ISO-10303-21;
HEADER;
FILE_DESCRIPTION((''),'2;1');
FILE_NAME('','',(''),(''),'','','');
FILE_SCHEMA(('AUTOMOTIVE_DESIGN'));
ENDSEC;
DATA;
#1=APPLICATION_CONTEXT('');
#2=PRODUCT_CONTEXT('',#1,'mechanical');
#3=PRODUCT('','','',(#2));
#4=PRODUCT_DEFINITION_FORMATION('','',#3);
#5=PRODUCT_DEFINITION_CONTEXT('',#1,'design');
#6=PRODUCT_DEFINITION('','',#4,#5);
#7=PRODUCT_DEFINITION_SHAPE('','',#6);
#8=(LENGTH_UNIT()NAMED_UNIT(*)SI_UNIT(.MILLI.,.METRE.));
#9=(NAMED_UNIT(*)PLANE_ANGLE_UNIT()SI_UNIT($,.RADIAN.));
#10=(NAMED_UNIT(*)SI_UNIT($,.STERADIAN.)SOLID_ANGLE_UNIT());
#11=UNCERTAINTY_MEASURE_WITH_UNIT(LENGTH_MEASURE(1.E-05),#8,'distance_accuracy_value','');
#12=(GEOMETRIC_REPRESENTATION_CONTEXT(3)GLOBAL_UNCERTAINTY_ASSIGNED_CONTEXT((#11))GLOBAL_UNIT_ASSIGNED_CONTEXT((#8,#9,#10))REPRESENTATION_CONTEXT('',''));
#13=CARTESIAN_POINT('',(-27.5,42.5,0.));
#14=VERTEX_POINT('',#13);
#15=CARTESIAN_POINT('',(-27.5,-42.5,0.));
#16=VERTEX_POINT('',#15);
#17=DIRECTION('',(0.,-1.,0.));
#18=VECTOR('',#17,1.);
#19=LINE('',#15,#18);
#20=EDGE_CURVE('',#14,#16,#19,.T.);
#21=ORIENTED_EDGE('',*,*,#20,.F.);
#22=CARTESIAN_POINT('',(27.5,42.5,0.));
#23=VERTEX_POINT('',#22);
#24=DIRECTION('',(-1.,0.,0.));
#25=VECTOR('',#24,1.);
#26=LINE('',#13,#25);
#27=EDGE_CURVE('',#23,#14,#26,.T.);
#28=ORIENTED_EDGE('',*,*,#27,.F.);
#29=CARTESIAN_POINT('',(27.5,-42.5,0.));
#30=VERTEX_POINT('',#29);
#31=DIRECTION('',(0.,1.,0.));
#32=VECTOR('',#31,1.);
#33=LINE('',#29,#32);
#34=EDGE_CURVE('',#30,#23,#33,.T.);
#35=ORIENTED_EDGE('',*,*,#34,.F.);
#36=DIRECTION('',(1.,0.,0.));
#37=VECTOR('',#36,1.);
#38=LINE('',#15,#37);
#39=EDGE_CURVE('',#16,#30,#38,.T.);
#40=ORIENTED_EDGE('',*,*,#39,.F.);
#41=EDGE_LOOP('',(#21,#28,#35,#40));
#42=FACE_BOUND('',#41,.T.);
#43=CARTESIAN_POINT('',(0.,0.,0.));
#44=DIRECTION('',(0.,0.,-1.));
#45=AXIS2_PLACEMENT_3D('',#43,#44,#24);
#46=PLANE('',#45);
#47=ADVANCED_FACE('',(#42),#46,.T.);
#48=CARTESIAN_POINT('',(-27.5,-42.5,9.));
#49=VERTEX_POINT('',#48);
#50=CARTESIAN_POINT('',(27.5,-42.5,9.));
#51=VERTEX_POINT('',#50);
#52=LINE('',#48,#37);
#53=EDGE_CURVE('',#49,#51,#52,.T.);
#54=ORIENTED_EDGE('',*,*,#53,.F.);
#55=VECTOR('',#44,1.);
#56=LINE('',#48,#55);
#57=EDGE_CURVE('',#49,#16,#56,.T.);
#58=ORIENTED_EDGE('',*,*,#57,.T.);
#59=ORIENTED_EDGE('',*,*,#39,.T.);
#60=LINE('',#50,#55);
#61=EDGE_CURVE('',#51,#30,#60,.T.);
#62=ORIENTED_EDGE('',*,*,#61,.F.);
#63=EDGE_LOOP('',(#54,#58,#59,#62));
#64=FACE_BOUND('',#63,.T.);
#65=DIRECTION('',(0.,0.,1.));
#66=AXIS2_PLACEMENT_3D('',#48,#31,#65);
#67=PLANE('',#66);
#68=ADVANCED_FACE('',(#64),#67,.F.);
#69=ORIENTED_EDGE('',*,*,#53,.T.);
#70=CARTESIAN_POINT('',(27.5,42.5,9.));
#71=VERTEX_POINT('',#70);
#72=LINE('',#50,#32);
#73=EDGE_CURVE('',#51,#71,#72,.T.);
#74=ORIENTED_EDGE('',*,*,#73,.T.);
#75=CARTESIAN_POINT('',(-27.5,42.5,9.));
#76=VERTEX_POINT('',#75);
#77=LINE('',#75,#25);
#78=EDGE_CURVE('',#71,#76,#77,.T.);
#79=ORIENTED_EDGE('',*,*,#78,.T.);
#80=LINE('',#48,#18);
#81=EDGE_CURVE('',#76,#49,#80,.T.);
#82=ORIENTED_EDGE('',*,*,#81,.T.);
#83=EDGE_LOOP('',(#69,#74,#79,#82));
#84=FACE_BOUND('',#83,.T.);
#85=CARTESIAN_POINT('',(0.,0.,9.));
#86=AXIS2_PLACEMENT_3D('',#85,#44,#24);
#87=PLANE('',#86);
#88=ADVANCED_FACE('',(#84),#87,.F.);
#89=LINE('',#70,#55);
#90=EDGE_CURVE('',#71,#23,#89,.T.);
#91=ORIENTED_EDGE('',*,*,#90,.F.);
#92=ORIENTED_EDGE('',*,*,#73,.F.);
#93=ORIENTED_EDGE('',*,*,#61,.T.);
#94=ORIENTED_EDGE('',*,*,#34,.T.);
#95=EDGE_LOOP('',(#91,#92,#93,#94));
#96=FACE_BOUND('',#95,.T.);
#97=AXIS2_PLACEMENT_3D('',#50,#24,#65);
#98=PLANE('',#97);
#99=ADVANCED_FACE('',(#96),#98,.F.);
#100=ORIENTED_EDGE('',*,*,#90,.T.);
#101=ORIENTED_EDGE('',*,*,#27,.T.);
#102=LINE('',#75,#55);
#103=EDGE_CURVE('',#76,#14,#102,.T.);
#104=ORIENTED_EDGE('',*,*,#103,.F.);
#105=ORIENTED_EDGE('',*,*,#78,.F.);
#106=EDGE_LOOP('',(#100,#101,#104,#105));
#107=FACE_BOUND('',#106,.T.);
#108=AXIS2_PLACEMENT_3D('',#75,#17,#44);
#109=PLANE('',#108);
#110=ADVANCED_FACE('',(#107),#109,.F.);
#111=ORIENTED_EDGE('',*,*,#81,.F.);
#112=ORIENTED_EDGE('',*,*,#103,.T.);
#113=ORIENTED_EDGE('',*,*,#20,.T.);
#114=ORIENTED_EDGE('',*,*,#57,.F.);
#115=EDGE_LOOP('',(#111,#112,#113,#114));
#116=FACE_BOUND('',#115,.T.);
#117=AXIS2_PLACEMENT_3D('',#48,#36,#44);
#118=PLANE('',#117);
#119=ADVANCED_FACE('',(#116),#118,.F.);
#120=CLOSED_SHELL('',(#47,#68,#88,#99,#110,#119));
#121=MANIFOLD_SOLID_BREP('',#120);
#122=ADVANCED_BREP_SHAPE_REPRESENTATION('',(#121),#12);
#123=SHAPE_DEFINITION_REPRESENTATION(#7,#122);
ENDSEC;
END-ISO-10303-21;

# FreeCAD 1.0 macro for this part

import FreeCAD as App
import Part
import Sketcher

V = App.Vector
Q = App.Units.Quantity

doc = App.newDocument("Part")
body = doc.addObject("PartDesign::Body", "Body")

sketch1 = body.newObject("Sketcher::SketchObject", "Sketch")
sketch1.AttachmentSupport = (doc.getObject("XY_Plane"), [""])
sketch1.MapMode = "FlatFace"
sketch1.addGeometry([
    Part.LineSegment(V(-28, 42, 0), V(-28, -42, 0)),
    Part.LineSegment(V(-28, -42, 0), V(28, -42, 0)),
    Part.LineSegment(V(28, -42, 0), V(28, 42, 0)),
    Part.LineSegment(V(28, 42, 0), V(-28, 42, 0)),
], False)
sketch1.addConstraint([
    Sketcher.Constraint("Coincident", 0, 2, 1, 1),
    Sketcher.Constraint("Coincident", 1, 2, 2, 1),
    Sketcher.Constraint("Coincident", 2, 2, 3, 1),
    Sketcher.Constraint("Coincident", 3, 2, 0, 1),
    Sketcher.Constraint("Vertical", 0),
    Sketcher.Constraint("Horizontal", 1),
    Sketcher.Constraint("Vertical", 2),
    Sketcher.Constraint("Horizontal", 3),
    Sketcher.Constraint("Symmetric", 0, 2, 2, 2, -1, 1),
    Sketcher.Constraint("DistanceX", 1, 1, 1, 2, Q("55 mm")),
    Sketcher.Constraint("DistanceY", 0, 2, 0, 1, Q("85 mm")),
])
pad1 = body.newObject("PartDesign::Pad", "Pad")
pad1.Profile = sketch1
pad1.Length = 9

doc.recompute()
